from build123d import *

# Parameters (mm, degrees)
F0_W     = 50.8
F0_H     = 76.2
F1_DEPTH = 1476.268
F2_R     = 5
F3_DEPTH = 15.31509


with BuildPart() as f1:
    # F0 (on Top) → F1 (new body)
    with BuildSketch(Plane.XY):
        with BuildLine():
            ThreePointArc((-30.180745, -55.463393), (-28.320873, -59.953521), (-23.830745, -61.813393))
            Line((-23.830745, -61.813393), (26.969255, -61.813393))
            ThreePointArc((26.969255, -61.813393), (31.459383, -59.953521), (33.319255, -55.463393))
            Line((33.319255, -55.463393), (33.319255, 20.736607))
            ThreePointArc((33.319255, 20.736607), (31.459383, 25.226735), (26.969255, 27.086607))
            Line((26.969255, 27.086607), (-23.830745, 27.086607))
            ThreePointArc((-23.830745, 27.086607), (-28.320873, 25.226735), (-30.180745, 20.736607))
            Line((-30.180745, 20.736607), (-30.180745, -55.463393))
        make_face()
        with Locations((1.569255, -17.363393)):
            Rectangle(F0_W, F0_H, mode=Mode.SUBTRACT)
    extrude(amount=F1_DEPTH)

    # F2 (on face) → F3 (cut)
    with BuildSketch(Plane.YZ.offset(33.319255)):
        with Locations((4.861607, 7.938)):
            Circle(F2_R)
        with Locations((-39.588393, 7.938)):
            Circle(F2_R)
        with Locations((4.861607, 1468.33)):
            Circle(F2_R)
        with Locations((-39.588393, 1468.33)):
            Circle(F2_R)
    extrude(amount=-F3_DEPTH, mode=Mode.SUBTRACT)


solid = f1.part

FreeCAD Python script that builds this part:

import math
import FreeCAD as App
import Part
import Sketcher

V = App.Vector
Q = App.Units.Quantity

doc = App.newDocument("Part")
body = doc.addObject("PartDesign::Body", "Body")

sketch1 = body.newObject("Sketcher::SketchObject", "Sketch")
sketch1.AttachmentSupport = (doc.getObject("XY_Plane"), [""])
sketch1.MapMode = "FlatFace"
sketch1.addGeometry(Part.ArcOfCircle(Part.Circle(V(-23.830745, -55.463393, 0), V(0, 0, 1), 6.35), math.radians(-179.999998), math.radians(-90.000002)), False)
sketch1.addGeometry(Part.LineSegment(V(-23.830745, -61.813393, 0), V(26.969255, -61.813393, 0)), False)
sketch1.addGeometry(Part.ArcOfCircle(Part.Circle(V(26.969255, -55.463393, 0), V(0, 0, 1), 6.35), math.radians(-89.999998), math.radians(-0.000002)), False)
sketch1.addGeometry(Part.LineSegment(V(33.319255, -55.463393, 0), V(33.319255, 20.736607, 0)), False)
sketch1.addGeometry(Part.ArcOfCircle(Part.Circle(V(26.969255, 20.736607, 0), V(0, 0, 1), 6.35), math.radians(0.000002), math.radians(89.999998)), False)
sketch1.addGeometry(Part.LineSegment(V(26.969255, 27.086607, 0), V(-23.830745, 27.086607, 0)), False)
sketch1.addGeometry(Part.ArcOfCircle(Part.Circle(V(-23.830745, 20.736607, 0), V(0, 0, 1), 6.35), math.radians(90.000002), math.radians(179.999998)), False)
sketch1.addGeometry(Part.LineSegment(V(-30.180745, 20.736607, 0), V(-30.180745, -55.463393, 0)), False)
sketch1.addGeometry(Part.LineSegment(V(26.969255, -55.463393, 0), V(-23.830745, -55.463393, 0)), False)
sketch1.addGeometry(Part.LineSegment(V(-23.830745, -55.463393, 0), V(-23.830745, 20.736607, 0)), False)
sketch1.addGeometry(Part.LineSegment(V(-23.830745, 20.736607, 0), V(26.969255, 20.736607, 0)), False)
sketch1.addGeometry(Part.LineSegment(V(26.969255, 20.736607, 0), V(26.969255, -55.463393, 0)), False)
sketch1.addConstraint(Sketcher.Constraint("Tangent", 0, 2, 1, 1))
sketch1.addConstraint(Sketcher.Constraint("Tangent", 1, 2, 2, 1))
sketch1.addConstraint(Sketcher.Constraint("Tangent", 2, 2, 3, 1))
sketch1.addConstraint(Sketcher.Constraint("Tangent", 3, 2, 4, 1))
sketch1.addConstraint(Sketcher.Constraint("Tangent", 4, 2, 5, 1))
sketch1.addConstraint(Sketcher.Constraint("Tangent", 5, 2, 6, 1))
sketch1.addConstraint(Sketcher.Constraint("Tangent", 6, 2, 7, 1))
sketch1.addConstraint(Sketcher.Constraint("Tangent", 7, 2, 0, 1))
sketch1.addConstraint(Sketcher.Constraint("Coincident", 8, 2, 9, 1))
sketch1.addConstraint(Sketcher.Constraint("Coincident", 9, 2, 10, 1))
sketch1.addConstraint(Sketcher.Constraint("Coincident", 10, 2, 11, 1))
sketch1.addConstraint(Sketcher.Constraint("Coincident", 11, 2, 8, 1))
sketch1.addConstraint(Sketcher.Constraint("Horizontal", 1))
sketch1.addConstraint(Sketcher.Constraint("Vertical", 3))
sketch1.addConstraint(Sketcher.Constraint("Horizontal", 5))
sketch1.addConstraint(Sketcher.Constraint("Vertical", 7))
sketch1.addConstraint(Sketcher.Constraint("Horizontal", 8))
sketch1.addConstraint(Sketcher.Constraint("Vertical", 9))
sketch1.addConstraint(Sketcher.Constraint("Horizontal", 10))
sketch1.addConstraint(Sketcher.Constraint("Vertical", 11))
sketch1.addConstraint(Sketcher.Constraint("Coincident", 8, 2, 0, 3))
sketch1.addConstraint(Sketcher.Constraint("Coincident", 9, 2, 6, 3))
sketch1.addConstraint(Sketcher.Constraint("Coincident", 10, 2, 4, 3))
sketch1.addConstraint(Sketcher.Constraint("Equal", 0, 2))
sketch1.addConstraint(Sketcher.Constraint("DistanceX", 1, 1, 1, 2, Q("2 in")))
sketch1.addConstraint(Sketcher.Constraint("DistanceY", 3, 1, 3, 2, Q("3 in")))
sketch1.addConstraint(Sketcher.Constraint("Radius", 0, Q("0.25 in")))
sketch1.addConstraint(Sketcher.Constraint("DistanceX", 0, 3, -1, 1, 23.830745))
sketch1.addConstraint(Sketcher.Constraint("DistanceY", 0, 3, -1, 1, 55.463393))
pad1 = body.newObject("PartDesign::Pad", "Pad")
pad1.Profile = sketch1
pad1.Length = 1476.268

sketch2 = body.newObject("Sketcher::SketchObject", "Sketch001")
sketch2.AttachmentSupport = (doc.getObject("YZ_Plane"), [""])
sketch2.MapMode = "FlatFace"
sketch2.AttachmentOffset = App.Placement(V(0, 0, 33.319255), App.Rotation())
sketch2.addGeometry(Part.Circle(V(4.861607, 7.938, 0), V(0, 0, 1), 5), False)
sketch2.addGeometry(Part.Circle(V(-39.588393, 7.938, 0), V(0, 0, 1), 5), False)
sketch2.addGeometry(Part.Circle(V(4.861607, 1468.33, 0), V(0, 0, 1), 5), False)
sketch2.addGeometry(Part.Circle(V(-39.588393, 1468.33, 0), V(0, 0, 1), 5), False)
sketch2.addConstraint(Sketcher.Constraint("Equal", 0, 1))
sketch2.addConstraint(Sketcher.Constraint("Equal", 1, 2))
sketch2.addConstraint(Sketcher.Constraint("Equal", 2, 3))
sketch2.addConstraint(Sketcher.Constraint("Horizontal", 0, 3, 1, 3))
sketch2.addConstraint(Sketcher.Constraint("Horizontal", 2, 3, 3, 3))
sketch2.addConstraint(Sketcher.Constraint("Vertical", 0, 3, 2, 3))
sketch2.addConstraint(Sketcher.Constraint("Vertical", 1, 3, 3, 3))
sketch2.addConstraint(Sketcher.Constraint("Diameter", 0, 10.0))
sketch2.addConstraint(Sketcher.Constraint("DistanceX", 1, 3, 0, 3, Q("1.75 in")))
sketch2.addConstraint(Sketcher.Constraint("DistanceY", -1, 1, 0, 3, 7.938))
sketch2.addConstraint(Sketcher.Constraint("DistanceY", -1, 1, 2, 3, 1468.33))
sketch2.addConstraint(Sketcher.Constraint("DistanceX", -1, 1, 0, 3, 4.861607))
pocket1 = body.newObject("PartDesign::Pocket", "Pocket")
pocket1.Profile = sketch2
pocket1.Length = 15.31509

doc.recompute()
